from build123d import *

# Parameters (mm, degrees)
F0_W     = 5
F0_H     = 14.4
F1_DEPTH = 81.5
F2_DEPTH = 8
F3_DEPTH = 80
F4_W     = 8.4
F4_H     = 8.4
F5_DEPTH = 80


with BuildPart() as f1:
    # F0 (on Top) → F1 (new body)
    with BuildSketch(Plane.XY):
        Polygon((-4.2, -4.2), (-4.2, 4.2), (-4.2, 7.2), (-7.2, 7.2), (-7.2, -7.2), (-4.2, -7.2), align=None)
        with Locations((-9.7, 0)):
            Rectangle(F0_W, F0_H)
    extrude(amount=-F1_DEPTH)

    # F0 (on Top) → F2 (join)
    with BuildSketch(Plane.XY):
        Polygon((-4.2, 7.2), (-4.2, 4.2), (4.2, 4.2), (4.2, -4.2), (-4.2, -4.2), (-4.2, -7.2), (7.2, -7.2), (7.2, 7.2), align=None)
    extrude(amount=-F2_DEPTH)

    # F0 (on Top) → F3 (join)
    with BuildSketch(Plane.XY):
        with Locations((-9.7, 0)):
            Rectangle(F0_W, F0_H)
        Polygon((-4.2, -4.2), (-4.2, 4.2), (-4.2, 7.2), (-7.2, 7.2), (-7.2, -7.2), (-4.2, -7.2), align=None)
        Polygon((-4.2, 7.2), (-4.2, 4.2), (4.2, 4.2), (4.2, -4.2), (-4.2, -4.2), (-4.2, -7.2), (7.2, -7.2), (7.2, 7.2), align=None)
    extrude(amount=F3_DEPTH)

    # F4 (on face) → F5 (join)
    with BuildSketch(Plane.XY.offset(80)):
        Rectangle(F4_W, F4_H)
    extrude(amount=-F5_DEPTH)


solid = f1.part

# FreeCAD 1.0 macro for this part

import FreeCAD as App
import Part
import Sketcher

V = App.Vector

doc = App.newDocument("Part")
params = doc.addObject("Spreadsheet::Sheet", "Params")
for row, (alias, value) in enumerate([
    ("sketch1_width", "8 mm"),
    ("sketch1_height", "14.4 mm"),
    ("pad1_length", "81.5 mm"),
    ("sketch2_height", "3 mm"),
    ("sketch2_width", "8.4 mm"),
    ("sketch2_width2", "11.4 mm"),
    ("pad2_length", "8 mm"),
    ("sketch3_width", "19.4 mm"),
    ("sketch3_width2", "8.4 mm"),
    ("sketch3_height", "14.4 mm"),
    ("pad3_length", "80 mm"),
    ("sketch4_width", "8.4 mm"),
    ("pad4_length", "80 mm"),
], start=1):
    params.set(f"A{row}", alias)
    params.set(f"B{row}", "=" + value)
    params.setAlias(f"B{row}", alias)

body = doc.addObject("PartDesign::Body", "Body")

# Sketch on XY plane
sketch1 = doc.addObject("Sketcher::SketchObject", "Sketch")
body.addObject(sketch1)
sketch1.AttachmentSupport = (doc.XY_Plane, [""])
sketch1.MapMode = "FlatFace"
sketch1.addGeometry([
    Part.LineSegment(V(-4, 7, 0), V(-12, 7, 0)),
    Part.LineSegment(V(-12, 7, 0), V(-12, -7, 0)),
    Part.LineSegment(V(-12, -7, 0), V(-4, -7, 0)),
    Part.LineSegment(V(-4, -7, 0), V(-4, 7, 0)),
], False)
sketch1.addConstraint([
    Sketcher.Constraint("Coincident", 0, 2, 1, 1),
    Sketcher.Constraint("Coincident", 1, 2, 2, 1),
    Sketcher.Constraint("Coincident", 2, 2, 3, 1),
    Sketcher.Constraint("Coincident", 3, 2, 0, 1),
    Sketcher.Constraint("Horizontal", 0),
    Sketcher.Constraint("Vertical", 1),
    Sketcher.Constraint("Horizontal", 2),
    Sketcher.Constraint("Vertical", 3),
    Sketcher.Constraint("DistanceX", 0, 2, 0, 1, 8.0),
    Sketcher.Constraint("DistanceY", 1, 2, 1, 1, 14.4),
    Sketcher.Constraint("DistanceX", 0, 2, -1, 1, 12.2),
    Sketcher.Constraint("DistanceY", -1, 1, 0, 2, 7.2),
])
sketch1.setExpression("Constraints[8]", "Params.sketch1_width")
sketch1.setExpression("Constraints[9]", "Params.sketch1_height")
pad1 = doc.addObject("PartDesign::Pad", "Pad")
body.addObject(pad1)
pad1.Profile = sketch1
pad1.setExpression("Length", "Params.pad1_length")
pad1.Reversed = True

# Sketch on XY plane
sketch2 = doc.addObject("Sketcher::SketchObject", "Sketch001")
body.addObject(sketch2)
sketch2.AttachmentSupport = (doc.XY_Plane, [""])
sketch2.MapMode = "FlatFace"
sketch2.addGeometry([
    Part.LineSegment(V(-4.2, 7.2, 0), V(-4.2, 4.2, 0)),  # 0
    Part.LineSegment(V(-4.2, 4.2, 0), V(4.2, 4.2, 0)),  # 1
    Part.LineSegment(V(4.2, 4.2, 0), V(4.2, -4.2, 0)),  # 2
    Part.LineSegment(V(4.2, -4.2, 0), V(-4.2, -4.2, 0)),  # 3
    Part.LineSegment(V(-4.2, -4.2, 0), V(-4.2, -7.2, 0)),  # 4
    Part.LineSegment(V(-4.2, -7.2, 0), V(7.2, -7.2, 0)),  # 5
    Part.LineSegment(V(7.2, -7.2, 0), V(7.2, 7.2, 0)),  # 6
    Part.LineSegment(V(7.2, 7.2, 0), V(-4.2, 7.2, 0)),  # 7
], False)
sketch2.addConstraint([
    Sketcher.Constraint("Coincident", 0, 2, 1, 1),
    Sketcher.Constraint("Coincident", 1, 2, 2, 1),
    Sketcher.Constraint("Coincident", 2, 2, 3, 1),
    Sketcher.Constraint("Coincident", 3, 2, 4, 1),
    Sketcher.Constraint("Coincident", 4, 2, 5, 1),
    Sketcher.Constraint("Coincident", 5, 2, 6, 1),
    Sketcher.Constraint("Coincident", 6, 2, 7, 1),
    Sketcher.Constraint("Coincident", 7, 2, 0, 1),
    Sketcher.Constraint("Vertical", 0),
    Sketcher.Constraint("Horizontal", 1),
    Sketcher.Constraint("Vertical", 2),
    Sketcher.Constraint("Horizontal", 3),
    Sketcher.Constraint("Vertical", 4),
    Sketcher.Constraint("Horizontal", 5),
    Sketcher.Constraint("Vertical", 6),
    Sketcher.Constraint("Horizontal", 7),
    Sketcher.Constraint("Symmetric", 0, 2, 2, 2, -1, 1),
    Sketcher.Constraint("Symmetric", 4, 2, 7, 2, -1),
    Sketcher.Constraint("Equal", 3, 2),
    Sketcher.Constraint("DistanceY", 0, 2, 0, 1, 3.0),
    Sketcher.Constraint("DistanceX", 1, 1, 1, 2, 8.4),
    Sketcher.Constraint("DistanceX", 5, 1, 5, 2, 11.4),
])
sketch2.setExpression("Constraints[19]", "Params.sketch2_height")
sketch2.setExpression("Constraints[20]", "Params.sketch2_width")
sketch2.setExpression("Constraints[21]", "Params.sketch2_width2")
pad2 = doc.addObject("PartDesign::Pad", "Pad001")
body.addObject(pad2)
pad2.Profile = sketch2
pad2.setExpression("Length", "Params.pad2_length")
pad2.Reversed = True

# Sketch on XY plane
sketch3 = doc.addObject("Sketcher::SketchObject", "Sketch002")
body.addObject(sketch3)
sketch3.AttachmentSupport = (doc.XY_Plane, [""])
sketch3.MapMode = "FlatFace"
sketch3.addGeometry([
    Part.LineSegment(V(-12, 7, 0), V(-12, -7, 0)),  # 0
    Part.LineSegment(V(-12, -7, 0), V(7, -7, 0)),  # 1
    Part.LineSegment(V(7, -7, 0), V(7, 7, 0)),  # 2
    Part.LineSegment(V(7, 7, 0), V(-12, 7, 0)),  # 3
    Part.LineSegment(V(-4, -4, 0), V(-4, 4, 0)),  # 4
    Part.LineSegment(V(-4, 4, 0), V(4, 4, 0)),  # 5
    Part.LineSegment(V(4, 4, 0), V(4, -4, 0)),  # 6
    Part.LineSegment(V(4, -4, 0), V(-4, -4, 0)),  # 7
], False)
sketch3.addConstraint([
    Sketcher.Constraint("Coincident", 0, 2, 1, 1),
    Sketcher.Constraint("Coincident", 1, 2, 2, 1),
    Sketcher.Constraint("Coincident", 2, 2, 3, 1),
    Sketcher.Constraint("Coincident", 3, 2, 0, 1),
    Sketcher.Constraint("Coincident", 4, 2, 5, 1),
    Sketcher.Constraint("Coincident", 5, 2, 6, 1),
    Sketcher.Constraint("Coincident", 6, 2, 7, 1),
    Sketcher.Constraint("Coincident", 7, 2, 4, 1),
    Sketcher.Constraint("Vertical", 0),
    Sketcher.Constraint("Horizontal", 1),
    Sketcher.Constraint("Vertical", 2),
    Sketcher.Constraint("Horizontal", 3),
    Sketcher.Constraint("Vertical", 4),
    Sketcher.Constraint("Horizontal", 5),
    Sketcher.Constraint("Vertical", 6),
    Sketcher.Constraint("Horizontal", 7),
    Sketcher.Constraint("Symmetric", 4, 2, 6, 2, -1, 1),
    Sketcher.Constraint("Equal", 7, 4),
    Sketcher.Constraint("DistanceX", 1, 1, 1, 2, 19.4),
    Sketcher.Constraint("DistanceX", 5, 1, 5, 2, 8.4),
    Sketcher.Constraint("DistanceY", 0, 2, 0, 1, 14.4),
    Sketcher.Constraint("DistanceX", 3, 2, 4, 2, 8.0),
    Sketcher.Constraint("DistanceY", 4, 2, 3, 2, 3.0),
])
sketch3.setExpression("Constraints[18]", "Params.sketch3_width")
sketch3.setExpression("Constraints[19]", "Params.sketch3_width2")
sketch3.setExpression("Constraints[20]", "Params.sketch3_height")
pad3 = doc.addObject("PartDesign::Pad", "Pad002")
body.addObject(pad3)
pad3.Profile = sketch3
pad3.setExpression("Length", "Params.pad3_length")

# Sketch on XY plane
sketch4 = doc.addObject("Sketcher::SketchObject", "Sketch003")
body.addObject(sketch4)
sketch4.AttachmentSupport = (doc.XY_Plane, [""])
sketch4.MapMode = "FlatFace"
sketch4.AttachmentOffset = App.Placement(V(0, 0, 80), App.Rotation())
sketch4.addGeometry([
    Part.LineSegment(V(-4, 4, 0), V(-4, -4, 0)),
    Part.LineSegment(V(-4, -4, 0), V(4, -4, 0)),
    Part.LineSegment(V(4, -4, 0), V(4, 4, 0)),
    Part.LineSegment(V(4, 4, 0), V(-4, 4, 0)),
], False)
sketch4.addConstraint([
    Sketcher.Constraint("Coincident", 0, 2, 1, 1),
    Sketcher.Constraint("Coincident", 1, 2, 2, 1),
    Sketcher.Constraint("Coincident", 2, 2, 3, 1),
    Sketcher.Constraint("Coincident", 3, 2, 0, 1),
    Sketcher.Constraint("Vertical", 0),
    Sketcher.Constraint("Horizontal", 1),
    Sketcher.Constraint("Vertical", 2),
    Sketcher.Constraint("Horizontal", 3),
    Sketcher.Constraint("Symmetric", 0, 2, 2, 2, -1, 1),
    Sketcher.Constraint("Equal", 3, 0),
    Sketcher.Constraint("DistanceX", 1, 1, 1, 2, 8.4),
])
sketch4.setExpression("Constraints[10]", "Params.sketch4_width")
pad4 = doc.addObject("PartDesign::Pad", "Pad003")
body.addObject(pad4)
pad4.Profile = sketch4
pad4.setExpression("Length", "Params.pad4_length")
pad4.Reversed = True

doc.recompute()
